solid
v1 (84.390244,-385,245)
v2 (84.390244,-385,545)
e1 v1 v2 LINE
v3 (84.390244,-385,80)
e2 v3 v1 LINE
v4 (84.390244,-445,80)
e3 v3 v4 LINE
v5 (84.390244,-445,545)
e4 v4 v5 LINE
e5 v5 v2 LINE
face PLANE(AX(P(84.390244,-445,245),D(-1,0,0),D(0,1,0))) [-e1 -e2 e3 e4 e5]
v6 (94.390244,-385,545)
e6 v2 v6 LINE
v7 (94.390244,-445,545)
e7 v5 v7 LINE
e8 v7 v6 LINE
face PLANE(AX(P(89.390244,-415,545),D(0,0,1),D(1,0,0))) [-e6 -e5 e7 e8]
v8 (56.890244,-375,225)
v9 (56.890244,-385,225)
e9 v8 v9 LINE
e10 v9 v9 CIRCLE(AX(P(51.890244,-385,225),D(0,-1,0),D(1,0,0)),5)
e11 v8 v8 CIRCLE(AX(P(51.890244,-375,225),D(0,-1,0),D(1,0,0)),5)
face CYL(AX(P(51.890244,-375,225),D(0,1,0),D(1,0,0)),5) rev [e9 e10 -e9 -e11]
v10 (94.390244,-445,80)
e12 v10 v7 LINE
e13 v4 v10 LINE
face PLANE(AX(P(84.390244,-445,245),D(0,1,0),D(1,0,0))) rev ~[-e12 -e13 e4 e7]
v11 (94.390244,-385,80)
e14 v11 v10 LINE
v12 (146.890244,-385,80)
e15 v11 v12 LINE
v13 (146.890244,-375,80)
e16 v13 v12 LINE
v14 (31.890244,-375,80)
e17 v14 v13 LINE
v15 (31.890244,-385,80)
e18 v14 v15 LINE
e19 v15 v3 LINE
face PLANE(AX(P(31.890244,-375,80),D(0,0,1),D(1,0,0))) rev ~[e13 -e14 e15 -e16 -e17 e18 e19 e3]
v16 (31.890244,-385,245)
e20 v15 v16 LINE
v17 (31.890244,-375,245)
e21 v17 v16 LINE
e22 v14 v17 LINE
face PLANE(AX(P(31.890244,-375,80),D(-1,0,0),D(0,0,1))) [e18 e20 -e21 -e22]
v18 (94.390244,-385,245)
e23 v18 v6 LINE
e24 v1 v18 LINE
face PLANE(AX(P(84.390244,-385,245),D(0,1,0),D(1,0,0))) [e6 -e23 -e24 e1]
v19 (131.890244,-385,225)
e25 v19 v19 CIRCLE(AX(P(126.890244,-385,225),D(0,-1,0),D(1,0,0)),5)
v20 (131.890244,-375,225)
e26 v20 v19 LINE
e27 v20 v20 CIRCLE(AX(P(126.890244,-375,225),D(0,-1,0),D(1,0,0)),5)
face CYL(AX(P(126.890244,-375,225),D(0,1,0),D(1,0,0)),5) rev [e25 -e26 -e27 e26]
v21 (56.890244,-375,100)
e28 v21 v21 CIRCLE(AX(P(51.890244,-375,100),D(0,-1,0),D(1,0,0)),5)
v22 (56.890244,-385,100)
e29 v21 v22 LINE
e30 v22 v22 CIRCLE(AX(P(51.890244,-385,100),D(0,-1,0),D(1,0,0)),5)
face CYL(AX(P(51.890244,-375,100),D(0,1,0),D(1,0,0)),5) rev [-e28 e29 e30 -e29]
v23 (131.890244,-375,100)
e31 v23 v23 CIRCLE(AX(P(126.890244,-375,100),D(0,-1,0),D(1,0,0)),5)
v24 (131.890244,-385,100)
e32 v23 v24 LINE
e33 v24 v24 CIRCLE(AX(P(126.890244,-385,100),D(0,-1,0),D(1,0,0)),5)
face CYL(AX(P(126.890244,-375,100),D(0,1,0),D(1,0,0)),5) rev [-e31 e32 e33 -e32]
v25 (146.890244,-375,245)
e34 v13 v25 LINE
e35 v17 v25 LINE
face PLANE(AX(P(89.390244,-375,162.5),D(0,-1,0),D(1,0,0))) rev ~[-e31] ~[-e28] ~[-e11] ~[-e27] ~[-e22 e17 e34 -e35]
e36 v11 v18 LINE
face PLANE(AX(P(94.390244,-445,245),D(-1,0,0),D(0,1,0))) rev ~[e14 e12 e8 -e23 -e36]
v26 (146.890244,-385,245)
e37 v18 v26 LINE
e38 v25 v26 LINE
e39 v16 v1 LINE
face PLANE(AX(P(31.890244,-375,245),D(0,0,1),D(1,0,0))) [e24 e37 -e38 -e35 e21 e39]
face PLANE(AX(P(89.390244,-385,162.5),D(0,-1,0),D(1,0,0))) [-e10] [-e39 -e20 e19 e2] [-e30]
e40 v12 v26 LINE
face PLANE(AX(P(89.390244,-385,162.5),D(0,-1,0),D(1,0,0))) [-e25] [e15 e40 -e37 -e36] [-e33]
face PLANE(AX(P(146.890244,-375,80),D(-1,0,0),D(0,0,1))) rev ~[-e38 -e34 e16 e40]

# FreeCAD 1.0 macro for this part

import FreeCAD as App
import Part
import Sketcher

V = App.Vector
Q = App.Units.Quantity

doc = App.newDocument("Part")
params = doc.addObject("Spreadsheet::Sheet", "Params")
for row, (alias, value) in enumerate([
    ("sketch1_diameter", "10 mm"),
    ("sketch1_width", "115 mm"),
    ("sketch1_height", "165 mm"),
    ("pad1_length", "10 mm"),
    ("sketch2_width", "10 mm"),
    ("sketch2_height", "165 mm"),
    ("pad2_length", "60 mm"),
    ("sketch3_width", "10 mm"),
    ("sketch3_height", "60 mm"),
    ("pad3_length", "300 mm"),
], start=1):
    params.set(f"A{row}", alias)
    params.set(f"B{row}", "=" + value)
    params.setAlias(f"B{row}", alias)

body = doc.addObject("PartDesign::Body", "Body")

# Sketch on XZ plane
sketch1 = body.newObject("Sketcher::SketchObject", "Sketch")
sketch1.AttachmentSupport = (doc.getObject("XZ_Plane"), [""])
sketch1.MapMode = "FlatFace"
sketch1.AttachmentOffset = App.Placement(V(0, 0, 375), App.Rotation())
sketch1.addGeometry(Part.LineSegment(V(32, 245, 0), V(32, 80, 0)), False)
sketch1.addGeometry(Part.LineSegment(V(32, 80, 0), V(147, 80, 0)), False)
sketch1.addGeometry(Part.LineSegment(V(147, 80, 0), V(147, 245, 0)), False)
sketch1.addGeometry(Part.LineSegment(V(147, 245, 0), V(32, 245, 0)), False)
sketch1.addGeometry(Part.Circle(V(52, 100, 0), V(0, 0, 1), 5), False)
sketch1.addGeometry(Part.Circle(V(127, 100, 0), V(0, 0, 1), 5), False)
sketch1.addGeometry(Part.Circle(V(52, 225, 0), V(0, 0, 1), 5), False)
sketch1.addGeometry(Part.Circle(V(127, 225, 0), V(0, 0, 1), 5), False)
sketch1.addConstraint(Sketcher.Constraint("Coincident", 0, 2, 1, 1))
sketch1.addConstraint(Sketcher.Constraint("Coincident", 1, 2, 2, 1))
sketch1.addConstraint(Sketcher.Constraint("Coincident", 2, 2, 3, 1))
sketch1.addConstraint(Sketcher.Constraint("Coincident", 3, 2, 0, 1))
sketch1.addConstraint(Sketcher.Constraint("Vertical", 0))
sketch1.addConstraint(Sketcher.Constraint("Horizontal", 1))
sketch1.addConstraint(Sketcher.Constraint("Vertical", 2))
sketch1.addConstraint(Sketcher.Constraint("Horizontal", 3))
sketch1.addConstraint(Sketcher.Constraint("Equal", 4, 5))
sketch1.addConstraint(Sketcher.Constraint("Equal", 5, 6))
sketch1.addConstraint(Sketcher.Constraint("Equal", 6, 7))
sketch1.addConstraint(Sketcher.Constraint("Horizontal", 4, 3, 5, 3))
sketch1.addConstraint(Sketcher.Constraint("Horizontal", 6, 3, 7, 3))
sketch1.addConstraint(Sketcher.Constraint("Vertical", 4, 3, 6, 3))
sketch1.addConstraint(Sketcher.Constraint("Vertical", 5, 3, 7, 3))
sketch1.addConstraint(Sketcher.Constraint("Diameter", 4, Q("10 mm")))
sketch1.addConstraint(Sketcher.Constraint("DistanceX", 1, 1, 1, 2, Q("115 mm")))
sketch1.addConstraint(Sketcher.Constraint("DistanceY", 0, 2, 0, 1, Q("165 mm")))
sketch1.addConstraint(Sketcher.Constraint("DistanceY", -1, 1, 4, 3, Q("100 mm")))
sketch1.addConstraint(Sketcher.Constraint("DistanceY", -1, 1, 6, 3, Q("225 mm")))
sketch1.addConstraint(Sketcher.Constraint("DistanceY", -1, 1, 0, 2, Q("80 mm")))
sketch1.addConstraint(Sketcher.Constraint("DistanceX", 4, 3, 5, 3, Q("75 mm")))
sketch1.addConstraint(Sketcher.Constraint("DistanceX", 0, 2, 4, 3, Q("20 mm")))
sketch1.addConstraint(Sketcher.Constraint("DistanceX", -1, 1, 4, 3, Q("51.890244 mm")))
sketch1.setExpression("Constraints[15]", "Params.sketch1_diameter")
sketch1.setExpression("Constraints[16]", "Params.sketch1_width")
sketch1.setExpression("Constraints[17]", "Params.sketch1_height")
pad1 = body.newObject("PartDesign::Pad", "Pad")
pad1.Profile = sketch1
pad1.setExpression("Length", "Params.pad1_length")

# Sketch on XZ plane
sketch2 = body.newObject("Sketcher::SketchObject", "Sketch001")
sketch2.AttachmentSupport = (doc.getObject("XZ_Plane"), [""])
sketch2.MapMode = "FlatFace"
sketch2.AttachmentOffset = App.Placement(V(0, 0, 385), App.Rotation())
sketch2.addGeometry(Part.LineSegment(V(84, 245, 0), V(84, 80, 0)), False)
sketch2.addGeometry(Part.LineSegment(V(84, 80, 0), V(94, 80, 0)), False)
sketch2.addGeometry(Part.LineSegment(V(94, 80, 0), V(94, 245, 0)), False)
sketch2.addGeometry(Part.LineSegment(V(94, 245, 0), V(84, 245, 0)), False)
sketch2.addConstraint(Sketcher.Constraint("Coincident", 0, 2, 1, 1))
sketch2.addConstraint(Sketcher.Constraint("Coincident", 1, 2, 2, 1))
sketch2.addConstraint(Sketcher.Constraint("Coincident", 2, 2, 3, 1))
sketch2.addConstraint(Sketcher.Constraint("Coincident", 3, 2, 0, 1))
sketch2.addConstraint(Sketcher.Constraint("Vertical", 0))
sketch2.addConstraint(Sketcher.Constraint("Horizontal", 1))
sketch2.addConstraint(Sketcher.Constraint("Vertical", 2))
sketch2.addConstraint(Sketcher.Constraint("Horizontal", 3))
sketch2.addConstraint(Sketcher.Constraint("DistanceX", 1, 1, 1, 2, Q("10 mm")))
sketch2.addConstraint(Sketcher.Constraint("DistanceY", 0, 2, 0, 1, Q("165 mm")))
sketch2.addConstraint(Sketcher.Constraint("DistanceY", -1, 1, 0, 2, Q("80 mm")))
sketch2.addConstraint(Sketcher.Constraint("DistanceX", -1, 1, 0, 2, Q("84.390244 mm")))
sketch2.setExpression("Constraints[8]", "Params.sketch2_width")
sketch2.setExpression("Constraints[9]", "Params.sketch2_height")
pad2 = body.newObject("PartDesign::Pad", "Pad001")
pad2.Profile = sketch2
pad2.setExpression("Length", "Params.pad2_length")

# Sketch on XY plane
sketch3 = body.newObject("Sketcher::SketchObject", "Sketch002")
sketch3.AttachmentSupport = (doc.getObject("XY_Plane"), [""])
sketch3.MapMode = "FlatFace"
sketch3.AttachmentOffset = App.Placement(V(0, 0, 245), App.Rotation())
sketch3.addGeometry(Part.LineSegment(V(84, -385, 0), V(84, -445, 0)), False)
sketch3.addGeometry(Part.LineSegment(V(84, -445, 0), V(94, -445, 0)), False)
sketch3.addGeometry(Part.LineSegment(V(94, -445, 0), V(94, -385, 0)), False)
sketch3.addGeometry(Part.LineSegment(V(94, -385, 0), V(84, -385, 0)), False)
sketch3.addConstraint(Sketcher.Constraint("Coincident", 0, 2, 1, 1))
sketch3.addConstraint(Sketcher.Constraint("Coincident", 1, 2, 2, 1))
sketch3.addConstraint(Sketcher.Constraint("Coincident", 2, 2, 3, 1))
sketch3.addConstraint(Sketcher.Constraint("Coincident", 3, 2, 0, 1))
sketch3.addConstraint(Sketcher.Constraint("Vertical", 0))
sketch3.addConstraint(Sketcher.Constraint("Horizontal", 1))
sketch3.addConstraint(Sketcher.Constraint("Vertical", 2))
sketch3.addConstraint(Sketcher.Constraint("Horizontal", 3))
sketch3.addConstraint(Sketcher.Constraint("DistanceX", 1, 1, 1, 2, Q("10 mm")))
sketch3.addConstraint(Sketcher.Constraint("DistanceY", 0, 2, 0, 1, Q("60 mm")))
sketch3.addConstraint(Sketcher.Constraint("DistanceY", 0, 2, -1, 1, Q("445 mm")))
sketch3.addConstraint(Sketcher.Constraint("DistanceX", -1, 1, 0, 2, Q("84.390244 mm")))
sketch3.setExpression("Constraints[8]", "Params.sketch3_width")
sketch3.setExpression("Constraints[9]", "Params.sketch3_height")
pad3 = body.newObject("PartDesign::Pad", "Pad002")
pad3.Profile = sketch3
pad3.setExpression("Length", "Params.pad3_length")

doc.recompute()
